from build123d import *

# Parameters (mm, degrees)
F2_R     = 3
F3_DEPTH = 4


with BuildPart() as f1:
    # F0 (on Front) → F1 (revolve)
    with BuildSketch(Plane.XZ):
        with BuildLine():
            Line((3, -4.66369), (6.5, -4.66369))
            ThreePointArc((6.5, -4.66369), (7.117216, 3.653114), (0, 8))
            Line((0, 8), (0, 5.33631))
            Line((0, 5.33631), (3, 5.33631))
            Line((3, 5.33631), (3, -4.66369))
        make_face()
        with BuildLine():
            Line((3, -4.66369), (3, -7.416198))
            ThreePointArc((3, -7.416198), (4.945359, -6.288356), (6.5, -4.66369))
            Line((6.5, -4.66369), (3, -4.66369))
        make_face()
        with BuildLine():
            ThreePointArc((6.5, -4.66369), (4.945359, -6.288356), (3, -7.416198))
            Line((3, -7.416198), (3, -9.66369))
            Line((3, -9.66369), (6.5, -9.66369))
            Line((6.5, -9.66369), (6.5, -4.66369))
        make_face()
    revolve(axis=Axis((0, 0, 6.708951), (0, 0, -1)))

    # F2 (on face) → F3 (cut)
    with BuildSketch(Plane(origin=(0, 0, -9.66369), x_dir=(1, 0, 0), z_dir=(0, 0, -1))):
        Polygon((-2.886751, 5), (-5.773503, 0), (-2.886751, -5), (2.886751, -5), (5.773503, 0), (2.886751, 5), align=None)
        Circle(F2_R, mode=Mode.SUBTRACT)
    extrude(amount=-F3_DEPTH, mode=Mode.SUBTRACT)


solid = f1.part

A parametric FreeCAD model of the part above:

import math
import FreeCAD as App
import Part
import Sketcher

V = App.Vector
Q = App.Units.Quantity


def add_polygon(sketch, points):
    """Adds a closed chain of lines whose ends are joined by coincident constraints."""
    first, n = sketch.GeometryCount, len(points)
    for a, b in zip(points, points[1:] + points[:1]):
        sketch.addGeometry(Part.LineSegment(App.Vector(*a, 0), App.Vector(*b, 0)), False)
    for i in range(n):
        sketch.addConstraint(Sketcher.Constraint("Coincident", first + i, 2, first + (i + 1) % n, 1))

doc = App.newDocument("Part")
body = doc.addObject("PartDesign::Body", "Body")

# Sketch on XZ plane
sketch1 = body.newObject("Sketcher::SketchObject", "Sketch")
sketch1.AttachmentSupport = (doc.getObject("XZ_Plane"), [""])
sketch1.MapMode = "FlatFace"
sketch1.addGeometry([
    Part.ArcOfCircle(Part.Circle(V(0, 0, 0), V(0, 0, 1), 8), math.radians(-36), math.radians(90)),  # 0
    Part.LineSegment(V(0, 8, 0), V(0, 5.3, 0)),  # 1
    Part.LineSegment(V(0, 5.3, 0), V(3, 5.3, 0)),  # 2
    Part.LineSegment(V(3, 5.3, 0), V(3, -9.7, 0)),  # 3
    Part.LineSegment(V(3, -9.7, 0), V(6.5, -9.7, 0)),  # 4
    Part.LineSegment(V(6.5, -9.7, 0), V(6.5, -4.7, 0)),  # 5
], False)
sketch1.addConstraint([
    Sketcher.Constraint("Coincident", 0, 2, 1, 1),
    Sketcher.Constraint("Coincident", 1, 2, 2, 1),
    Sketcher.Constraint("Coincident", 2, 2, 3, 1),
    Sketcher.Constraint("Coincident", 3, 2, 4, 1),
    Sketcher.Constraint("Coincident", 4, 2, 5, 1),
    Sketcher.Constraint("Coincident", 5, 2, 0, 1),
    Sketcher.Constraint("Vertical", 1),
    Sketcher.Constraint("Horizontal", 2),
    Sketcher.Constraint("Vertical", 3),
    Sketcher.Constraint("Horizontal", 4),
    Sketcher.Constraint("Vertical", 5),
    Sketcher.Constraint("Coincident", 0, 3, -1, 1),
    Sketcher.Constraint("PointOnObject", 0, 2, -2),
    Sketcher.Constraint("Radius", 0, 8.0),
    Sketcher.Constraint("DistanceX", 2, 1, 2, 2, 3.0),
    Sketcher.Constraint("DistanceY", 3, 2, 3, 1, 15.0),
    Sketcher.Constraint("DistanceY", 5, 1, 5, 2, 5.0),
    Sketcher.Constraint("DistanceX", 4, 1, 4, 2, 3.5),
])
revolution = body.newObject("PartDesign::Revolution", "Revolution")
revolution.Profile = sketch1
revolution.ReferenceAxis = (sketch1, ["V_Axis"])
revolution.Angle = 360

# Sketch on XY plane
sketch2 = body.newObject("Sketcher::SketchObject", "Sketch001")
sketch2.AttachmentSupport = (doc.getObject("XY_Plane"), [""])
sketch2.MapMode = "FlatFace"
sketch2.AttachmentOffset = App.Placement(V(0, 0, -9.66369), App.Rotation())
add_polygon(sketch2, [(-2.9, -5), (-5.8, 0), (-2.9, 5), (2.9, 5), (5.8, 0), (2.9, -5)])  # lines 0-5
sketch2.addGeometry(Part.Circle(V(0, 0, 0), V(0, 0, 1), 3), False)  # 6
sketch2.addConstraint([
    Sketcher.Constraint("Horizontal", 2),
    Sketcher.Constraint("Horizontal", 5),
    Sketcher.Constraint("Coincident", 6, 3, -1, 1),
    Sketcher.Constraint("Symmetric", 0, 2, 3, 2, -1, 1),
    Sketcher.Constraint("Symmetric", 1, 2, 4, 2, -1, 1),
    Sketcher.Constraint("PointOnObject", 0, 2, -1),
    Sketcher.Constraint("Parallel", 0, 3),
    Sketcher.Constraint("Vertical", 2, 2, 4, 2),
    Sketcher.Constraint("Diameter", 6, 6.0),
    Sketcher.Constraint("Angle", 0, Q("120.000006 deg")),
    Sketcher.Constraint("DistanceY", -1, 1, 1, 2, 5.0),
    Sketcher.Constraint("DistanceX", 2, 1, 2, 2, 5.773502),
])
pocket1 = body.newObject("PartDesign::Pocket", "Pocket")
pocket1.Profile = sketch2
pocket1.Length = 4
pocket1.Reversed = True

doc.recompute()
